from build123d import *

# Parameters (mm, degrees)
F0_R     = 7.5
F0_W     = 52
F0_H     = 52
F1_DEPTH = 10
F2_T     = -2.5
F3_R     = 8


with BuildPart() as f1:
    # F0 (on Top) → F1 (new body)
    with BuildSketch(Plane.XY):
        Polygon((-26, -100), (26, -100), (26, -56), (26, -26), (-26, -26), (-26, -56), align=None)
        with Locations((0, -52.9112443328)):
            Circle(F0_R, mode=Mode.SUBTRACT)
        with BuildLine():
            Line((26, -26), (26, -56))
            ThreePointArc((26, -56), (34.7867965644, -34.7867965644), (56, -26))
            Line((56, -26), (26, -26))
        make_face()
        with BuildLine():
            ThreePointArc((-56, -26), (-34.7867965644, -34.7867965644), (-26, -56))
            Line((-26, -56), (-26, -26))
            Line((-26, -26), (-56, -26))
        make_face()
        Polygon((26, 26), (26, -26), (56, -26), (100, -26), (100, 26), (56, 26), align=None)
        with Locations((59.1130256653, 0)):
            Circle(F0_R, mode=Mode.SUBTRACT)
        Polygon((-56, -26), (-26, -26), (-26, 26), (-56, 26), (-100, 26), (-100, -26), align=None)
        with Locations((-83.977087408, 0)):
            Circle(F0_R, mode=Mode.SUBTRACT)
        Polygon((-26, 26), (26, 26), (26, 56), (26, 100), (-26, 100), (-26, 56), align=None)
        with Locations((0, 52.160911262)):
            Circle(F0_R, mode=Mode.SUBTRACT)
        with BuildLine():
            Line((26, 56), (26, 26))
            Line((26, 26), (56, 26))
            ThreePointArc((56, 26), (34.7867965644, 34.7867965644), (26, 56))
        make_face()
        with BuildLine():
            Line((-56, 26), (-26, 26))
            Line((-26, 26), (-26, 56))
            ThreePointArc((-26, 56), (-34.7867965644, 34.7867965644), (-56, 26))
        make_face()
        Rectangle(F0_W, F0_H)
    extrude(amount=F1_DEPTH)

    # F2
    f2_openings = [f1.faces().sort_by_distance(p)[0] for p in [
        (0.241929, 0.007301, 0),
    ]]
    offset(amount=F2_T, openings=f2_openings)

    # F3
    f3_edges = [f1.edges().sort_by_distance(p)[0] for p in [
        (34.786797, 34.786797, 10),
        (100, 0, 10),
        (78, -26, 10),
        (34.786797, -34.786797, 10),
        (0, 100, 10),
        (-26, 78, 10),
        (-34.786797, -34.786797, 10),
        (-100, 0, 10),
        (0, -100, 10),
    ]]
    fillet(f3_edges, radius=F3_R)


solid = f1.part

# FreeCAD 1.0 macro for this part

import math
import FreeCAD as App
import Part
import Sketcher

V = App.Vector


def edges_at(feature, points):
    """Names of the edges that pass closest to the given points."""
    edges = feature.Shape.Edges
    near = lambda p: min(range(len(edges)), key=lambda i: edges[i].distToShape(Part.Vertex(*p))[0])
    return sorted({f"Edge{near(p) + 1}" for p in points})


def faces_at(feature, points):
    """Names of the faces that lie closest to the given points."""
    faces = feature.Shape.Faces
    near = lambda p: min(range(len(faces)), key=lambda i: faces[i].distToShape(Part.Vertex(*p))[0])
    return sorted({f"Face{near(p) + 1}" for p in points})

doc = App.newDocument("Part")
body = doc.addObject("PartDesign::Body", "Body")

# Sketch on XY plane
sketch1 = body.newObject("Sketcher::SketchObject", "Sketch")
sketch1.AttachmentSupport = (doc.getObject("XY_Plane"), [""])
sketch1.MapMode = "FlatFace"
sketch1.addGeometry([
    Part.LineSegment(V(-26, 100, 0), V(-26, 56, 0)),  # 0
    Part.ArcOfCircle(Part.Circle(V(-56, 56, 0), V(0, 0, 1), 30), math.radians(-90), math.radians(0)),  # 1
    Part.LineSegment(V(-56, 26, 0), V(-100, 26, 0)),  # 2
    Part.LineSegment(V(-100, 26, 0), V(-100, -26, 0)),  # 3
    Part.LineSegment(V(-100, -26, 0), V(-56, -26, 0)),  # 4
    Part.ArcOfCircle(Part.Circle(V(-56, -56, 0), V(0, 0, 1), 30), math.radians(0), math.radians(90)),  # 5
    Part.LineSegment(V(-26, -56, 0), V(-26, -100, 0)),  # 6
    Part.LineSegment(V(-26, -100, 0), V(26, -100, 0)),  # 7
    Part.LineSegment(V(26, -100, 0), V(26, -56, 0)),  # 8
    Part.ArcOfCircle(Part.Circle(V(56, -56, 0), V(0, 0, 1), 30), math.radians(90), math.radians(180)),  # 9
    Part.LineSegment(V(56, -26, 0), V(100, -26, 0)),  # 10
    Part.LineSegment(V(100, -26, 0), V(100, 26, 0)),  # 11
    Part.LineSegment(V(100, 26, 0), V(56, 26, 0)),  # 12
    Part.ArcOfCircle(Part.Circle(V(56, 56, 0), V(0, 0, 1), 30), math.radians(180), math.radians(270)),  # 13
    Part.LineSegment(V(26, 56, 0), V(26, 100, 0)),  # 14
    Part.LineSegment(V(26, 100, 0), V(-26, 100, 0)),  # 15
    Part.Circle(V(0, -53, 0), V(0, 0, 1), 8),  # 16
    Part.Circle(V(-84, 0, 0), V(0, 0, 1), 8),  # 17
    Part.Circle(V(59, 0, 0), V(0, 0, 1), 8),  # 18
    Part.Circle(V(0, 52, 0), V(0, 0, 1), 8),  # 19
], False)
sketch1.addConstraint([
    Sketcher.Constraint("Tangent", 0, 2, 1, 2),
    Sketcher.Constraint("Tangent", 1, 1, 2, 1),
    Sketcher.Constraint("Coincident", 2, 2, 3, 1),
    Sketcher.Constraint("Coincident", 3, 2, 4, 1),
    Sketcher.Constraint("Tangent", 4, 2, 5, 2),
    Sketcher.Constraint("Tangent", 5, 1, 6, 1),
    Sketcher.Constraint("Coincident", 6, 2, 7, 1),
    Sketcher.Constraint("Coincident", 7, 2, 8, 1),
    Sketcher.Constraint("Tangent", 8, 2, 9, 2),
    Sketcher.Constraint("Tangent", 9, 1, 10, 1),
    Sketcher.Constraint("Coincident", 10, 2, 11, 1),
    Sketcher.Constraint("Coincident", 11, 2, 12, 1),
    Sketcher.Constraint("Tangent", 12, 2, 13, 2),
    Sketcher.Constraint("Tangent", 13, 1, 14, 1),
    Sketcher.Constraint("Coincident", 14, 2, 15, 1),
    Sketcher.Constraint("Coincident", 15, 2, 0, 1),
    Sketcher.Constraint("Vertical", 0),
    Sketcher.Constraint("Horizontal", 2),
    Sketcher.Constraint("Vertical", 3),
    Sketcher.Constraint("Horizontal", 4),
    Sketcher.Constraint("Vertical", 6),
    Sketcher.Constraint("Horizontal", 7),
    Sketcher.Constraint("Vertical", 8),
    Sketcher.Constraint("Horizontal", 10),
    Sketcher.Constraint("Vertical", 11),
    Sketcher.Constraint("Horizontal", 12),
    Sketcher.Constraint("Vertical", 14),
    Sketcher.Constraint("Horizontal", 15),
    Sketcher.Constraint("Equal", 1, 5),
    Sketcher.Constraint("Equal", 5, 9),
    Sketcher.Constraint("Equal", 9, 13),
    Sketcher.Constraint("Equal", 16, 17),
    Sketcher.Constraint("Equal", 17, 18),
    Sketcher.Constraint("Equal", 18, 19),
    Sketcher.Constraint("Symmetric", 1, 3, 9, 3, -1, 1),
    Sketcher.Constraint("Symmetric", 5, 3, 13, 3, -1, 1),
    Sketcher.Constraint("Symmetric", 5, 3, 9, 3, -2),
    Sketcher.Constraint("PointOnObject", 16, 3, -2),
    Sketcher.Constraint("PointOnObject", 17, 3, -1),
    Sketcher.Constraint("PointOnObject", 18, 3, -1),
    Sketcher.Constraint("PointOnObject", 19, 3, -2),
    Sketcher.Constraint("Equal", 4, 10),
    Sketcher.Constraint("Equal", 12, 0),
    Sketcher.Constraint("Equal", 15, 3),
    Sketcher.Constraint("Equal", 0, 6),
    Sketcher.Constraint("Diameter", 16, 15.0),
    Sketcher.Constraint("Radius", 1, 30.0),
    Sketcher.Constraint("DistanceX", 2, 2, 2, 1, 44.0),
    Sketcher.Constraint("DistanceX", 7, 1, 7, 2, 52.0),
    Sketcher.Constraint("DistanceY", -1, 1, 19, 3, 52.160911),
    Sketcher.Constraint("DistanceY", 16, 3, -1, 1, 52.911244),
    Sketcher.Constraint("DistanceX", 17, 3, -1, 1, 83.977087),
    Sketcher.Constraint("DistanceX", -1, 1, 18, 3, 59.113026),
])
pad1 = body.newObject("PartDesign::Pad", "Pad")
pad1.Profile = sketch1
pad1.Length = 10
doc.recompute()

thickness = body.newObject("PartDesign::Thickness", "Thickness")
thickness.Base = (pad1, faces_at(pad1, [(0, 0, 0)]))
thickness.Value = 2.5
thickness.Reversed = True
thickness.Join = "Arc"
doc.recompute()

fillet = body.newObject("PartDesign::Fillet", "Fillet")
fillet.Base = (thickness, edges_at(thickness, [
    (34.787, 34.787, 10),
    (100, 0, 10),
    (78, -26, 10),
    (34.787, -34.787, 10),
    (0, 100, 10),
    (-26, 78, 10),
    (-34.787, -34.787, 10),
    (-100, 0, 10),
    (0, -100, 10),
]))
fillet.Radius = 8

doc.recompute()
